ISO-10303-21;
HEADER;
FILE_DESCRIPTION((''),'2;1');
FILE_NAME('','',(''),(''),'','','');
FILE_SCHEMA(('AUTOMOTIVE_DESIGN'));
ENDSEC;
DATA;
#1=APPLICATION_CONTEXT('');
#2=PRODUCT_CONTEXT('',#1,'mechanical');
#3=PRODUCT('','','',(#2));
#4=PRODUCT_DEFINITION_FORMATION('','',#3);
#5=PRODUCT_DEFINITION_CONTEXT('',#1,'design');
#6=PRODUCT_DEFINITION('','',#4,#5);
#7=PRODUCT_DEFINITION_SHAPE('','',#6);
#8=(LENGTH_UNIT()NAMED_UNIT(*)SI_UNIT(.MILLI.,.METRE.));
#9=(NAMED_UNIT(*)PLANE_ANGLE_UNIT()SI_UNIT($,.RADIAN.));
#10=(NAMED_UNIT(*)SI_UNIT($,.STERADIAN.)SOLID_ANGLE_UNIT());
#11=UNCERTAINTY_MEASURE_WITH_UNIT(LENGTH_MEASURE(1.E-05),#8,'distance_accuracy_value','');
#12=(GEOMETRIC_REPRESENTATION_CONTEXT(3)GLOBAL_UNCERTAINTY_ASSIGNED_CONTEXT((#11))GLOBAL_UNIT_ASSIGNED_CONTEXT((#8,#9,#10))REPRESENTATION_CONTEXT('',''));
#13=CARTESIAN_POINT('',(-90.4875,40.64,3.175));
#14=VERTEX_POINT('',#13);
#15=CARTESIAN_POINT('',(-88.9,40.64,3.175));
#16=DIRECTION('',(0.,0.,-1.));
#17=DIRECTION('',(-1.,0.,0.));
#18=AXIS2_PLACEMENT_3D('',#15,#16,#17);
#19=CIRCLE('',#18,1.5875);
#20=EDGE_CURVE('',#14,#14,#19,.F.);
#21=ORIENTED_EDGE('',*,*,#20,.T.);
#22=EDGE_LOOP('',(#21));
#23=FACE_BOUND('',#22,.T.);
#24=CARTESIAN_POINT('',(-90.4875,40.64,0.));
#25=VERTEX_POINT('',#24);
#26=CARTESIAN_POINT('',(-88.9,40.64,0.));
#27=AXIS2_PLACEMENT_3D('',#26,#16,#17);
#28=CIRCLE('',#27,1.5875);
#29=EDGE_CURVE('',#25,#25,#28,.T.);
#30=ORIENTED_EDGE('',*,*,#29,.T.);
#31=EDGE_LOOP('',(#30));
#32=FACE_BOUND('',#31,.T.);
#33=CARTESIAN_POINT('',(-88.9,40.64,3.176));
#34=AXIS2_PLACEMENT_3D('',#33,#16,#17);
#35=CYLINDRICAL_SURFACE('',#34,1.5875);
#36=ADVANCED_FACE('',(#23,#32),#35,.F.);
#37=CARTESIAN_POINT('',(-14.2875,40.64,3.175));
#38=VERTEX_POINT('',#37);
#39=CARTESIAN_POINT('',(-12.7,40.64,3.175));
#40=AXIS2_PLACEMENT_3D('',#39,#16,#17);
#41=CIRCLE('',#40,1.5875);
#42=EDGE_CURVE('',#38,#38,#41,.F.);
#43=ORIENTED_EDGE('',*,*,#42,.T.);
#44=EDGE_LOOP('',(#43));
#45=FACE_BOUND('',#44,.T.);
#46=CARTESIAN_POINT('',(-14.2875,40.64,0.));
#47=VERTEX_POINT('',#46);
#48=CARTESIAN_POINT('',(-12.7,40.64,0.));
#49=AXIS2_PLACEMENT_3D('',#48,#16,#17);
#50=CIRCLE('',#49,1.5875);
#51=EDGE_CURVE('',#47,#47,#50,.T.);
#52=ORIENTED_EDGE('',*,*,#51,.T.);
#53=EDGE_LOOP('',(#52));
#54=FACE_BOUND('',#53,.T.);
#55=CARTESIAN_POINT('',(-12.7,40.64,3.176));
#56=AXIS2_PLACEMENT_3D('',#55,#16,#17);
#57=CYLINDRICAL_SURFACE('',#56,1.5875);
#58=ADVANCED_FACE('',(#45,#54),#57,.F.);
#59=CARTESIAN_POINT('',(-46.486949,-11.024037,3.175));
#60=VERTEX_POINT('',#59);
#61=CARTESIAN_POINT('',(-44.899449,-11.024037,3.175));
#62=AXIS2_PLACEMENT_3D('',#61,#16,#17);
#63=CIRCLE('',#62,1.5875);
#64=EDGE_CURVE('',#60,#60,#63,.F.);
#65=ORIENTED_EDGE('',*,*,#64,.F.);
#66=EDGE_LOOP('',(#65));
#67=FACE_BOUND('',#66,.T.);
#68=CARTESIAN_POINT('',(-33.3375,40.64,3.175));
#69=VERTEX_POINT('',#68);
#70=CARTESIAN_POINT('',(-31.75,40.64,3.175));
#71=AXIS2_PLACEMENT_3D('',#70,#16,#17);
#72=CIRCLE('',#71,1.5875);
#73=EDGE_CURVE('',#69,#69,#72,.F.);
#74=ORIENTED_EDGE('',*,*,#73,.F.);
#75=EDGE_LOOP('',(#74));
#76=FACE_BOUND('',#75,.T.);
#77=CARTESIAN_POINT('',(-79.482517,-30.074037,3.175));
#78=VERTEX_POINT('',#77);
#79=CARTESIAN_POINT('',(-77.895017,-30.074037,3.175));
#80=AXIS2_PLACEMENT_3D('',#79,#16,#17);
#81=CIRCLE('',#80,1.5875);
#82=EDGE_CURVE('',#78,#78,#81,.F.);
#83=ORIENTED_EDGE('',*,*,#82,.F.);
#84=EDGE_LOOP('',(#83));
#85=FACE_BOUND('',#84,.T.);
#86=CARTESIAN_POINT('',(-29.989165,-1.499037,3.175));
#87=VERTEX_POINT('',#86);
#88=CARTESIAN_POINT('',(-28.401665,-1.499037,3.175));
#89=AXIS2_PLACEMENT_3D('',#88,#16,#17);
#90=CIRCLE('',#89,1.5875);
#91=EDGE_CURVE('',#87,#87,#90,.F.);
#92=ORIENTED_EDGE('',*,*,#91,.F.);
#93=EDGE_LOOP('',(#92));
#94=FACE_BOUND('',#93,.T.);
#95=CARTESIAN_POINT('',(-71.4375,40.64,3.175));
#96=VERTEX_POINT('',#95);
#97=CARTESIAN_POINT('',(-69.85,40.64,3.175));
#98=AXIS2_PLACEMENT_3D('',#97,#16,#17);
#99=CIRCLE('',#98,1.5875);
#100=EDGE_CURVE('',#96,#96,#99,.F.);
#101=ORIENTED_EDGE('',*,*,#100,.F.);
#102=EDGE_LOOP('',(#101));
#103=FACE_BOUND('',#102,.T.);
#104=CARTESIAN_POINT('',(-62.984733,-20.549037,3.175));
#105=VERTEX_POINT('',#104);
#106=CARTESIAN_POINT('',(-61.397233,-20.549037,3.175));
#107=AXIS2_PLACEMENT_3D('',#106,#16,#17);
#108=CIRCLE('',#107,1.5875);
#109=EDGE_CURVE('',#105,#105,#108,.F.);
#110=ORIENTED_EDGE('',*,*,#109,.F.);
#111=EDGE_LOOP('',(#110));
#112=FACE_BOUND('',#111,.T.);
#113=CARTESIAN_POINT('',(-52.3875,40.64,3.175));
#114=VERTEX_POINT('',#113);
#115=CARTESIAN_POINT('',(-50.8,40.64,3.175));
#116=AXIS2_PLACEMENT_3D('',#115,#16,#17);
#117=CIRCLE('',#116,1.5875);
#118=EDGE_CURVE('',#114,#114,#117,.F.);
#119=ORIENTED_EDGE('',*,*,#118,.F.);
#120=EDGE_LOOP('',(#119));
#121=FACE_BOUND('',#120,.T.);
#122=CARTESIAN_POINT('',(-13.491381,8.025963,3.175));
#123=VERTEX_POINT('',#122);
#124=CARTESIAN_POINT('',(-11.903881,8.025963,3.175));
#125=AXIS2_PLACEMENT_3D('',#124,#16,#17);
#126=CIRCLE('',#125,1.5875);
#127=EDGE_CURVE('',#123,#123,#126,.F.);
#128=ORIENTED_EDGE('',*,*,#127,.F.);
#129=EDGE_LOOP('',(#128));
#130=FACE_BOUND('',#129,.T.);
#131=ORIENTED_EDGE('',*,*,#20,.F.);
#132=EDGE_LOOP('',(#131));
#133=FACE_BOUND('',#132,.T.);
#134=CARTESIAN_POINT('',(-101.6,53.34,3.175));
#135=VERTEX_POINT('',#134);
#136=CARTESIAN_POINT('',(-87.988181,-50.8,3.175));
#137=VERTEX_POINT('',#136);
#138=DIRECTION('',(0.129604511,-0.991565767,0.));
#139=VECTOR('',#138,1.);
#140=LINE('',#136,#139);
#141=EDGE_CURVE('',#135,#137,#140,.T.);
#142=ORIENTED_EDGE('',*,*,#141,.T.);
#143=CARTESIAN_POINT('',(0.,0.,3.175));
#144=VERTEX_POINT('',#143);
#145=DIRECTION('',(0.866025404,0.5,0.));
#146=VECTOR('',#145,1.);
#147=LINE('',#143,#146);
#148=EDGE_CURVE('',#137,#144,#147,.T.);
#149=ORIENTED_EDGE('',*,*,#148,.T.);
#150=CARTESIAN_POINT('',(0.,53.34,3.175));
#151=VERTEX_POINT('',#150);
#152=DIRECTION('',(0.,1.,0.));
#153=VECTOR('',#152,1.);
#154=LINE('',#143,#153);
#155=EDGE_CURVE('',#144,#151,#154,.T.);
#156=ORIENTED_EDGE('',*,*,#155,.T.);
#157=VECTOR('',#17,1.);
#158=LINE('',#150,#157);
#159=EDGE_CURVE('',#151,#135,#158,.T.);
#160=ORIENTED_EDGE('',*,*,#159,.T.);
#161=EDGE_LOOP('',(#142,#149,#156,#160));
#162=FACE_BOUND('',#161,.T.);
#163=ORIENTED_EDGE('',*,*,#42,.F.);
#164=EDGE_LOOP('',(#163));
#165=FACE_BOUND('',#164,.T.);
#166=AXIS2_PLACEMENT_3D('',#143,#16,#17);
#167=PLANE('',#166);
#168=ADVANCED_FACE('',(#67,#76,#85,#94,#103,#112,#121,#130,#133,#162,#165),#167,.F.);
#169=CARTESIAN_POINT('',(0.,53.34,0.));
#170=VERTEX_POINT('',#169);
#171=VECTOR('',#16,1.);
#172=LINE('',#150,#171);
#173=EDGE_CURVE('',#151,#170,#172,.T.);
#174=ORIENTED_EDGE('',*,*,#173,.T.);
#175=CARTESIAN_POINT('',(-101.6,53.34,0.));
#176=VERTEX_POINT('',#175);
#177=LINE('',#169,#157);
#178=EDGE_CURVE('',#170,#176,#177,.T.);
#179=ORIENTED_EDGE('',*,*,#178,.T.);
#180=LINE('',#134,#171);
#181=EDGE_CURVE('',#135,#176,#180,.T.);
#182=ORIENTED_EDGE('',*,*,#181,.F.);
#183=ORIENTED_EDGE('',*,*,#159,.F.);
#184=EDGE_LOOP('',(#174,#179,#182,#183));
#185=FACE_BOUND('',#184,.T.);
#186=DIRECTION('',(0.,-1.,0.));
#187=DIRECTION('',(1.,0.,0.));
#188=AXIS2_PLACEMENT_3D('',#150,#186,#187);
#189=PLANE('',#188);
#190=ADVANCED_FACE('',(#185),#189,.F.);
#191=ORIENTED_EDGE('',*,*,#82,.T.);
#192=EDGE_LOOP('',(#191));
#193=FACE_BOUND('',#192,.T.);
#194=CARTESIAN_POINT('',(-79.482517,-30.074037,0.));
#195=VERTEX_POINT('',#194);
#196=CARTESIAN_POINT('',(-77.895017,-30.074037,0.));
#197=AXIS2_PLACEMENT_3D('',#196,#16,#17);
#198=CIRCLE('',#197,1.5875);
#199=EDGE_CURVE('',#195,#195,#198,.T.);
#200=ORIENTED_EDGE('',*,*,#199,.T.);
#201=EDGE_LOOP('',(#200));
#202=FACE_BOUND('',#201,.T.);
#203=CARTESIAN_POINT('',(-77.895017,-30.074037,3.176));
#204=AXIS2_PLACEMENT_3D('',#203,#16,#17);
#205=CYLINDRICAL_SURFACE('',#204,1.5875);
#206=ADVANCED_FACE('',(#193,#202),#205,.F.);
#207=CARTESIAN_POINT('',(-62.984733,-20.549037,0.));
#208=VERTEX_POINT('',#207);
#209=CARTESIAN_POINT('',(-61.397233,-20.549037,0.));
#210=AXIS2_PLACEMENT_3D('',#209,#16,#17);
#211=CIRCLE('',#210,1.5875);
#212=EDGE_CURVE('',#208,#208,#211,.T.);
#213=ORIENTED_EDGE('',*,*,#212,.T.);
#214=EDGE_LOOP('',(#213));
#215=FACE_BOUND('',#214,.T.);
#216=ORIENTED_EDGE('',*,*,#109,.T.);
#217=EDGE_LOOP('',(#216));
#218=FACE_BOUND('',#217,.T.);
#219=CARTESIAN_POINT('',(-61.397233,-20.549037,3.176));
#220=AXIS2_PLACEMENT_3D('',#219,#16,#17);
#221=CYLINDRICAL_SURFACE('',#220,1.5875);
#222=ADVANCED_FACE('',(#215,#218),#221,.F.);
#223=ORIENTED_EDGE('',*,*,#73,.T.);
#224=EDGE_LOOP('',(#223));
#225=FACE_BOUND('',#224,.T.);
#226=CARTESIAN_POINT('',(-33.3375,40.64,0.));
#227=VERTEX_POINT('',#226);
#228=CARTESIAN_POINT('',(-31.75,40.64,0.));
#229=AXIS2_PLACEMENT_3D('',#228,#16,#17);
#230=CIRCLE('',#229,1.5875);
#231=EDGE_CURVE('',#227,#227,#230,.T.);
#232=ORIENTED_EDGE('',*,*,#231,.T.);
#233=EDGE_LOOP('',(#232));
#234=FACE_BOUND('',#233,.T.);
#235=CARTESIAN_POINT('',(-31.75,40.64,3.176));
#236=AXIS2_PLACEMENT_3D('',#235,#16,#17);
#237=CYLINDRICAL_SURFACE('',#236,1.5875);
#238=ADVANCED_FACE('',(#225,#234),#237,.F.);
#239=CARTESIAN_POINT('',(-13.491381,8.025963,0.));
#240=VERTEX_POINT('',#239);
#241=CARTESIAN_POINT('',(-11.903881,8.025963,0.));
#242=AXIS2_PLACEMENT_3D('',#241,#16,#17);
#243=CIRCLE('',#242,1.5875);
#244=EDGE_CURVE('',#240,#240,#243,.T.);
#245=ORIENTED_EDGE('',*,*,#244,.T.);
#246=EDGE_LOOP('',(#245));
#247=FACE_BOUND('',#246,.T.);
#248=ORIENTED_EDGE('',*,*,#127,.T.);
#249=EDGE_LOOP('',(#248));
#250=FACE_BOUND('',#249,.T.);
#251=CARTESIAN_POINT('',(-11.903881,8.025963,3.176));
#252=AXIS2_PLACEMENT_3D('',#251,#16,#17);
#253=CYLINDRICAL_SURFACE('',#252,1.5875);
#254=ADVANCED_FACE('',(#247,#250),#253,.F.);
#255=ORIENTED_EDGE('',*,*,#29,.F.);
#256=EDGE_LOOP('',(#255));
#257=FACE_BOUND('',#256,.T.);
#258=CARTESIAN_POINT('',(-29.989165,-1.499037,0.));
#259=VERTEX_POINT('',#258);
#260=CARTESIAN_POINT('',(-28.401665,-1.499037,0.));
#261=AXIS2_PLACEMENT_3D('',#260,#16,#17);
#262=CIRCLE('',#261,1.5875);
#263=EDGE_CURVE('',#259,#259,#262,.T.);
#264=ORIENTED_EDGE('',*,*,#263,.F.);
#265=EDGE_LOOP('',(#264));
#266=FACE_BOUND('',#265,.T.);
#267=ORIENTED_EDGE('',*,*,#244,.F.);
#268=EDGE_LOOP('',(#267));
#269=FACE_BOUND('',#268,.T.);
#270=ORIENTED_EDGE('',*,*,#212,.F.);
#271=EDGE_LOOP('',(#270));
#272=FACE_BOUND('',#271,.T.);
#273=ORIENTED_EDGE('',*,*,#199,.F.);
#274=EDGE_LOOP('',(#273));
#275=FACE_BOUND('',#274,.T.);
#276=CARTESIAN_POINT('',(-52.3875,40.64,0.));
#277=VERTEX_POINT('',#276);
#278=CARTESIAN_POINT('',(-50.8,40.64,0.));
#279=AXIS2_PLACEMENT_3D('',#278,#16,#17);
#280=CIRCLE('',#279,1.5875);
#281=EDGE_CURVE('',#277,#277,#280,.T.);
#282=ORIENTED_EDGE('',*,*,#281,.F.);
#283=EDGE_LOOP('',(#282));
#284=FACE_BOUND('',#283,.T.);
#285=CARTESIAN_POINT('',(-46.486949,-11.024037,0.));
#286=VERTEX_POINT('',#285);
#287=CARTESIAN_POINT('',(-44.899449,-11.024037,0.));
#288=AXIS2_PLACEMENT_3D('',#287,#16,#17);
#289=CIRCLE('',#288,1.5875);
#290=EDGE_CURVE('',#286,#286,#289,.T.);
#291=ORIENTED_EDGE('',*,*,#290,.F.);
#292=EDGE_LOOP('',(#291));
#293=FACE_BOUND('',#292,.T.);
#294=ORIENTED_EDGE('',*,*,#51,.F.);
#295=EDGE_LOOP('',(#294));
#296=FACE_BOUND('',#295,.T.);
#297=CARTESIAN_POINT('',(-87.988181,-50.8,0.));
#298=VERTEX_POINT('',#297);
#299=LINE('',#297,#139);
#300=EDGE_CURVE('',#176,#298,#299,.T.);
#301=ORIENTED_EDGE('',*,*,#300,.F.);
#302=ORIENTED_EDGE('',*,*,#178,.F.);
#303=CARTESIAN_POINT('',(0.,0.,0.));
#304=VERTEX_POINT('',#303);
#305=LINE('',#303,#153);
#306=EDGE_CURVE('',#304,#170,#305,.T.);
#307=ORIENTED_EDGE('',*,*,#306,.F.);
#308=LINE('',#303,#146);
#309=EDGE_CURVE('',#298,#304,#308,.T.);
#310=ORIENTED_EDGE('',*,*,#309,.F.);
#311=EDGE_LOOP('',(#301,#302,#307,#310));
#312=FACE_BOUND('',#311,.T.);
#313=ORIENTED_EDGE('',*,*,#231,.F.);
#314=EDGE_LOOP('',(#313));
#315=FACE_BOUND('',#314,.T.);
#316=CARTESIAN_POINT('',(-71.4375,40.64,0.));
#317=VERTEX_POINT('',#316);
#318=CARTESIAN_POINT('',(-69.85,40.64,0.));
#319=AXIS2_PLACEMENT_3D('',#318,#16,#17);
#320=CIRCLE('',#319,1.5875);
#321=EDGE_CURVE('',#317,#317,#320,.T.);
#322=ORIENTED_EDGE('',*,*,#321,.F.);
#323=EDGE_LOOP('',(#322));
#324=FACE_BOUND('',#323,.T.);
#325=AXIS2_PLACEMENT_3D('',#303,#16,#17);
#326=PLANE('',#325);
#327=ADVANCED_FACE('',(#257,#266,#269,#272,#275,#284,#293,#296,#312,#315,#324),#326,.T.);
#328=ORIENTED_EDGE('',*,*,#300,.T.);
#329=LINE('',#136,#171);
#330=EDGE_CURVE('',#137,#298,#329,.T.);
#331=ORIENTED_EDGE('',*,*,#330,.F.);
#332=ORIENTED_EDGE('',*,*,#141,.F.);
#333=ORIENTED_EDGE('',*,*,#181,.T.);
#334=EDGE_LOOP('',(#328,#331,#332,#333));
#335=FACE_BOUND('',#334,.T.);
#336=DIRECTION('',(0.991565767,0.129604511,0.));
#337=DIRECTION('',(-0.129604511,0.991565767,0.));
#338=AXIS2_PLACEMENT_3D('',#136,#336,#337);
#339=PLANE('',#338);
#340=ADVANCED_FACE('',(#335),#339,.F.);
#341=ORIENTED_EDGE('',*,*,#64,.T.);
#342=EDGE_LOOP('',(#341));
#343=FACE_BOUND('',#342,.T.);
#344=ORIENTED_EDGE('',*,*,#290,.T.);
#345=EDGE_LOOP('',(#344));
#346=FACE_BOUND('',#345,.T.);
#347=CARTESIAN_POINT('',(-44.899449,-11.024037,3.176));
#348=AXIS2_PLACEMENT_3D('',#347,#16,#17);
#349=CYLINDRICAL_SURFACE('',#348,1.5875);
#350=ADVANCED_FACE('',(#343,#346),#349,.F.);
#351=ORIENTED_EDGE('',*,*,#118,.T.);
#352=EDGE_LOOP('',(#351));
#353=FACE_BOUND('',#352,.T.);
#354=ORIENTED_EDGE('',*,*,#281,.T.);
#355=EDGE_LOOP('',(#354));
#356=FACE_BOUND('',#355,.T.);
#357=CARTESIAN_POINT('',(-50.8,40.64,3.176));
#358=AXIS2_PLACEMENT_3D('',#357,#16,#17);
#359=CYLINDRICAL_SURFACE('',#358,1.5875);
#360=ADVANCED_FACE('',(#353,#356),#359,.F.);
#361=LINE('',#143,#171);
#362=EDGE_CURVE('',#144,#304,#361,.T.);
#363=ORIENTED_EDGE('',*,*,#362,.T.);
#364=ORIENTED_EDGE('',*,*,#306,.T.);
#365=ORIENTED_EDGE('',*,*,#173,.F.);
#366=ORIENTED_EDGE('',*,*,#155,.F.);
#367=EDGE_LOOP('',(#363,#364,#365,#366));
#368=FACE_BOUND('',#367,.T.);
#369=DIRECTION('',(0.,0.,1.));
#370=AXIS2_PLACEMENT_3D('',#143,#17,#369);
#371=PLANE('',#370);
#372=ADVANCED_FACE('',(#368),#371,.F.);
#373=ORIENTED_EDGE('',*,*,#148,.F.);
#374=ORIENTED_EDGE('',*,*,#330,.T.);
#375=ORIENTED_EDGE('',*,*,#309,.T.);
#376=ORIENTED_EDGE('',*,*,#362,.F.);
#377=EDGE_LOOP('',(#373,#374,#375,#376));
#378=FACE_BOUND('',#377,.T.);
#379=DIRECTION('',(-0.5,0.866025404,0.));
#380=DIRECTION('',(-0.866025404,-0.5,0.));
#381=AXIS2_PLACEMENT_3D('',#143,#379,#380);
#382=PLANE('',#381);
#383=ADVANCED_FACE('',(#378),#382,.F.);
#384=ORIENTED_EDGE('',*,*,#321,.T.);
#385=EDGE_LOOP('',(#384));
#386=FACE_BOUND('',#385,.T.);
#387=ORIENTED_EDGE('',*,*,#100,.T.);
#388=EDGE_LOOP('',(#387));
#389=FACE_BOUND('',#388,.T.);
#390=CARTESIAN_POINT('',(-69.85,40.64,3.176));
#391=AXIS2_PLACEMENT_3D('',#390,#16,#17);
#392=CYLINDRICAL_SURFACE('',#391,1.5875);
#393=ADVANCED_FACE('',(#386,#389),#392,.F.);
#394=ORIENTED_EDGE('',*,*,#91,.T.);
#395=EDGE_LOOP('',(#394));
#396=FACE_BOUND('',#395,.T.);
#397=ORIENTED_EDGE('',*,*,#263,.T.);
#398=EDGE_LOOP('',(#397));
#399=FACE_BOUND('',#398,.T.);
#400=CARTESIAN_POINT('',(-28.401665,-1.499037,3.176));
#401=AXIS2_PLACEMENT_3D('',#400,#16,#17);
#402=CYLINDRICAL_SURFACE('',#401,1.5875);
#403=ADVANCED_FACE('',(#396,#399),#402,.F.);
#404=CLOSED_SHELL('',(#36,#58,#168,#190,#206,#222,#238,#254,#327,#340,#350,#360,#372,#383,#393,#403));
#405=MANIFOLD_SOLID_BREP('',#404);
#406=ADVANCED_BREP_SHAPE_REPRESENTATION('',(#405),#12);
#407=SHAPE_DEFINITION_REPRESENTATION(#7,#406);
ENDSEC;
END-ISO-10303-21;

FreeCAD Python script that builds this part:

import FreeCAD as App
import Part
import Sketcher
from FreeCAD import Vector
Q = App.Units.Quantity

doc = App.newDocument("Part")
body = doc.addObject("PartDesign::Body", "Body")

sketch1 = body.newObject("Sketcher::SketchObject", "Sketch")
sketch1.AttachmentSupport = (doc.getObject("XY_Plane"), [""])
sketch1.MapMode = "FlatFace"
sketch1.addGeometry(Part.LineSegment(Vector(0, 0, 0), Vector(0, 53, 0)), False)
sketch1.addGeometry(Part.LineSegment(Vector(0, 53, 0), Vector(-102, 53, 0)), False)
sketch1.addGeometry(Part.LineSegment(Vector(-102, 53, 0), Vector(-88, -51, 0)), False)
sketch1.addGeometry(Part.LineSegment(Vector(-88, -51, 0), Vector(0, 0, 0)), False)
sketch1.addConstraint(Sketcher.Constraint("Coincident", 0, 2, 1, 1))
sketch1.addConstraint(Sketcher.Constraint("Coincident", 1, 2, 2, 1))
sketch1.addConstraint(Sketcher.Constraint("Coincident", 2, 2, 3, 1))
sketch1.addConstraint(Sketcher.Constraint("Coincident", 3, 2, 0, 1))
sketch1.addConstraint(Sketcher.Constraint("Vertical", 0))
sketch1.addConstraint(Sketcher.Constraint("Horizontal", 1))
sketch1.addConstraint(Sketcher.Constraint("Coincident", 3, 2, -1, 1))
sketch1.addConstraint(Sketcher.Constraint("DistanceX", 1, 2, 1, 1, Q("4 in")))
sketch1.addConstraint(Sketcher.Constraint("Distance", 3, Q("4 in")))
sketch1.addConstraint(Sketcher.Constraint("DistanceY", 0, 1, 0, 2, Q("2.1 in")))
sketch1.addConstraint(Sketcher.Constraint("DistanceY", 2, 2, -1, 1, Q("2 in")))
pad1 = body.newObject("PartDesign::Pad", "Pad")
pad1.Profile = sketch1
pad1.Length = Q("0.125 in")

sketch2 = body.newObject("Sketcher::SketchObject", "Sketch001")
sketch2.AttachmentSupport = (doc.getObject("XY_Plane"), [""])
sketch2.MapMode = "FlatFace"
sketch2.addGeometry(Part.Circle(Vector(-12.7, 40.6, 0), Vector(0, 0, 1), 1.6), False)
sketch2.addConstraint(Sketcher.Constraint("Diameter", 0, Q("0.125 in")))
sketch2.addConstraint(Sketcher.Constraint("DistanceX", 0, 3, -1, 1, Q("0.5 in")))
sketch2.addConstraint(Sketcher.Constraint("DistanceY", -1, 1, 0, 3, Q("1.6 in")))
pocket1 = body.newObject("PartDesign::Pocket", "Pocket")
pocket1.Profile = sketch2
pocket1.Type = "UpToFirst"
pocket1.Reversed = True

sketch3 = body.newObject("Sketcher::SketchObject", "Sketch002")
sketch3.AttachmentSupport = (doc.getObject("XY_Plane"), [""])
sketch3.MapMode = "FlatFace"
sketch3.addGeometry(Part.Circle(Vector(-31.8, 40.6, 0), Vector(0, 0, 1), 1.6), False)
sketch3.addConstraint(Sketcher.Constraint("Diameter", 0, Q("0.125 in")))
sketch3.addConstraint(Sketcher.Constraint("DistanceY", -1, 1, 0, 3, Q("1.6 in")))
sketch3.addConstraint(Sketcher.Constraint("DistanceX", 0, 3, -1, 1, Q("1.25 in")))
pocket2 = body.newObject("PartDesign::Pocket", "Pocket001")
pocket2.Profile = sketch3
pocket2.Type = "UpToFirst"
pocket2.Reversed = True

sketch4 = body.newObject("Sketcher::SketchObject", "Sketch003")
sketch4.AttachmentSupport = (doc.getObject("XY_Plane"), [""])
sketch4.MapMode = "FlatFace"
sketch4.addGeometry(Part.Circle(Vector(-50.8, 40.6, 0), Vector(0, 0, 1), 1.6), False)
sketch4.addConstraint(Sketcher.Constraint("Diameter", 0, Q("0.125 in")))
sketch4.addConstraint(Sketcher.Constraint("DistanceX", 0, 3, -1, 1, Q("2 in")))
sketch4.addConstraint(Sketcher.Constraint("DistanceY", -1, 1, 0, 3, Q("1.6 in")))
pocket3 = body.newObject("PartDesign::Pocket", "Pocket002")
pocket3.Profile = sketch4
pocket3.Type = "UpToFirst"
pocket3.Reversed = True

sketch5 = body.newObject("Sketcher::SketchObject", "Sketch004")
sketch5.AttachmentSupport = (doc.getObject("XY_Plane"), [""])
sketch5.MapMode = "FlatFace"
sketch5.addGeometry(Part.Circle(Vector(-69.8, 40.6, 0), Vector(0, 0, 1), 1.6), False)
sketch5.addConstraint(Sketcher.Constraint("Diameter", 0, Q("0.125 in")))
sketch5.addConstraint(Sketcher.Constraint("DistanceY", -1, 1, 0, 3, Q("1.6 in")))
sketch5.addConstraint(Sketcher.Constraint("DistanceX", 0, 3, -1, 1, Q("2.75 in")))
pocket4 = body.newObject("PartDesign::Pocket", "Pocket003")
pocket4.Profile = sketch5
pocket4.Type = "UpToFirst"
pocket4.Reversed = True

sketch6 = body.newObject("Sketcher::SketchObject", "Sketch005")
sketch6.AttachmentSupport = (doc.getObject("XY_Plane"), [""])
sketch6.MapMode = "FlatFace"
sketch6.addGeometry(Part.Circle(Vector(-88.9, 40.6, 0), Vector(0, 0, 1), 1.6), False)
sketch6.addConstraint(Sketcher.Constraint("Diameter", 0, Q("0.125 in")))
sketch6.addConstraint(Sketcher.Constraint("DistanceX", 0, 3, -1, 1, Q("3.5 in")))
sketch6.addConstraint(Sketcher.Constraint("DistanceY", -1, 1, 0, 3, Q("1.6 in")))
pocket5 = body.newObject("PartDesign::Pocket", "Pocket004")
pocket5.Profile = sketch6
pocket5.Type = "UpToFirst"
pocket5.Reversed = True

sketch7 = body.newObject("Sketcher::SketchObject", "Sketch006")
sketch7.AttachmentSupport = (doc.getObject("XY_Plane"), [""])
sketch7.MapMode = "FlatFace"
sketch7.addGeometry(Part.Circle(Vector(-11.9, 8, 0), Vector(0, 0, 1), 1.6), False)
sketch7.addConstraint(Sketcher.Constraint("Diameter", 0, Q("0.125 in")))
sketch7.addConstraint(Sketcher.Constraint("DistanceX", 0, 3, -1, 1, 11.903881))
sketch7.addConstraint(Sketcher.Constraint("DistanceY", -1, 1, 0, 3, 8.025963))
pocket6 = body.newObject("PartDesign::Pocket", "Pocket005")
pocket6.Profile = sketch7
pocket6.Type = "UpToFirst"
pocket6.Reversed = True

sketch8 = body.newObject("Sketcher::SketchObject", "Sketch007")
sketch8.AttachmentSupport = (doc.getObject("XY_Plane"), [""])
sketch8.MapMode = "FlatFace"
sketch8.addGeometry(Part.Circle(Vector(-28.4, -1.5, 0), Vector(0, 0, 1), 1.6), False)
sketch8.addConstraint(Sketcher.Constraint("Diameter", 0, Q("0.125 in")))
sketch8.addConstraint(Sketcher.Constraint("DistanceX", 0, 3, -1, 1, 28.401665))
sketch8.addConstraint(Sketcher.Constraint("DistanceY", 0, 3, -1, 1, 1.499037))
pocket7 = body.newObject("PartDesign::Pocket", "Pocket006")
pocket7.Profile = sketch8
pocket7.Type = "UpToFirst"
pocket7.Reversed = True

sketch9 = body.newObject("Sketcher::SketchObject", "Sketch008")
sketch9.AttachmentSupport = (doc.getObject("XY_Plane"), [""])
sketch9.MapMode = "FlatFace"
sketch9.addGeometry(Part.Circle(Vector(-44.9, -11, 0), Vector(0, 0, 1), 1.6), False)
sketch9.addConstraint(Sketcher.Constraint("Diameter", 0, Q("0.125 in")))
sketch9.addConstraint(Sketcher.Constraint("DistanceX", 0, 3, -1, 1, 44.899449))
sketch9.addConstraint(Sketcher.Constraint("DistanceY", 0, 3, -1, 1, 11.024037))
pocket8 = body.newObject("PartDesign::Pocket", "Pocket007")
pocket8.Profile = sketch9
pocket8.Type = "UpToFirst"
pocket8.Reversed = True

sketch10 = body.newObject("Sketcher::SketchObject", "Sketch009")
sketch10.AttachmentSupport = (doc.getObject("XY_Plane"), [""])
sketch10.MapMode = "FlatFace"
sketch10.addGeometry(Part.Circle(Vector(-61.4, -20.5, 0), Vector(0, 0, 1), 1.6), False)
sketch10.addConstraint(Sketcher.Constraint("Diameter", 0, Q("0.125 in")))
sketch10.addConstraint(Sketcher.Constraint("DistanceX", 0, 3, -1, 1, 61.397233))
sketch10.addConstraint(Sketcher.Constraint("DistanceY", 0, 3, -1, 1, 20.549037))
pocket9 = body.newObject("PartDesign::Pocket", "Pocket008")
pocket9.Profile = sketch10
pocket9.Type = "UpToFirst"
pocket9.Reversed = True

sketch11 = body.newObject("Sketcher::SketchObject", "Sketch010")
sketch11.AttachmentSupport = (doc.getObject("XY_Plane"), [""])
sketch11.MapMode = "FlatFace"
sketch11.addGeometry(Part.Circle(Vector(-77.9, -30.1, 0), Vector(0, 0, 1), 1.6), False)
sketch11.addConstraint(Sketcher.Constraint("Diameter", 0, Q("0.125 in")))
sketch11.addConstraint(Sketcher.Constraint("DistanceX", 0, 3, -1, 1, 77.895017))
sketch11.addConstraint(Sketcher.Constraint("DistanceY", 0, 3, -1, 1, 30.074037))
pocket10 = body.newObject("PartDesign::Pocket", "Pocket009")
pocket10.Profile = sketch11
pocket10.Type = "UpToFirst"
pocket10.Reversed = True

doc.recompute()
